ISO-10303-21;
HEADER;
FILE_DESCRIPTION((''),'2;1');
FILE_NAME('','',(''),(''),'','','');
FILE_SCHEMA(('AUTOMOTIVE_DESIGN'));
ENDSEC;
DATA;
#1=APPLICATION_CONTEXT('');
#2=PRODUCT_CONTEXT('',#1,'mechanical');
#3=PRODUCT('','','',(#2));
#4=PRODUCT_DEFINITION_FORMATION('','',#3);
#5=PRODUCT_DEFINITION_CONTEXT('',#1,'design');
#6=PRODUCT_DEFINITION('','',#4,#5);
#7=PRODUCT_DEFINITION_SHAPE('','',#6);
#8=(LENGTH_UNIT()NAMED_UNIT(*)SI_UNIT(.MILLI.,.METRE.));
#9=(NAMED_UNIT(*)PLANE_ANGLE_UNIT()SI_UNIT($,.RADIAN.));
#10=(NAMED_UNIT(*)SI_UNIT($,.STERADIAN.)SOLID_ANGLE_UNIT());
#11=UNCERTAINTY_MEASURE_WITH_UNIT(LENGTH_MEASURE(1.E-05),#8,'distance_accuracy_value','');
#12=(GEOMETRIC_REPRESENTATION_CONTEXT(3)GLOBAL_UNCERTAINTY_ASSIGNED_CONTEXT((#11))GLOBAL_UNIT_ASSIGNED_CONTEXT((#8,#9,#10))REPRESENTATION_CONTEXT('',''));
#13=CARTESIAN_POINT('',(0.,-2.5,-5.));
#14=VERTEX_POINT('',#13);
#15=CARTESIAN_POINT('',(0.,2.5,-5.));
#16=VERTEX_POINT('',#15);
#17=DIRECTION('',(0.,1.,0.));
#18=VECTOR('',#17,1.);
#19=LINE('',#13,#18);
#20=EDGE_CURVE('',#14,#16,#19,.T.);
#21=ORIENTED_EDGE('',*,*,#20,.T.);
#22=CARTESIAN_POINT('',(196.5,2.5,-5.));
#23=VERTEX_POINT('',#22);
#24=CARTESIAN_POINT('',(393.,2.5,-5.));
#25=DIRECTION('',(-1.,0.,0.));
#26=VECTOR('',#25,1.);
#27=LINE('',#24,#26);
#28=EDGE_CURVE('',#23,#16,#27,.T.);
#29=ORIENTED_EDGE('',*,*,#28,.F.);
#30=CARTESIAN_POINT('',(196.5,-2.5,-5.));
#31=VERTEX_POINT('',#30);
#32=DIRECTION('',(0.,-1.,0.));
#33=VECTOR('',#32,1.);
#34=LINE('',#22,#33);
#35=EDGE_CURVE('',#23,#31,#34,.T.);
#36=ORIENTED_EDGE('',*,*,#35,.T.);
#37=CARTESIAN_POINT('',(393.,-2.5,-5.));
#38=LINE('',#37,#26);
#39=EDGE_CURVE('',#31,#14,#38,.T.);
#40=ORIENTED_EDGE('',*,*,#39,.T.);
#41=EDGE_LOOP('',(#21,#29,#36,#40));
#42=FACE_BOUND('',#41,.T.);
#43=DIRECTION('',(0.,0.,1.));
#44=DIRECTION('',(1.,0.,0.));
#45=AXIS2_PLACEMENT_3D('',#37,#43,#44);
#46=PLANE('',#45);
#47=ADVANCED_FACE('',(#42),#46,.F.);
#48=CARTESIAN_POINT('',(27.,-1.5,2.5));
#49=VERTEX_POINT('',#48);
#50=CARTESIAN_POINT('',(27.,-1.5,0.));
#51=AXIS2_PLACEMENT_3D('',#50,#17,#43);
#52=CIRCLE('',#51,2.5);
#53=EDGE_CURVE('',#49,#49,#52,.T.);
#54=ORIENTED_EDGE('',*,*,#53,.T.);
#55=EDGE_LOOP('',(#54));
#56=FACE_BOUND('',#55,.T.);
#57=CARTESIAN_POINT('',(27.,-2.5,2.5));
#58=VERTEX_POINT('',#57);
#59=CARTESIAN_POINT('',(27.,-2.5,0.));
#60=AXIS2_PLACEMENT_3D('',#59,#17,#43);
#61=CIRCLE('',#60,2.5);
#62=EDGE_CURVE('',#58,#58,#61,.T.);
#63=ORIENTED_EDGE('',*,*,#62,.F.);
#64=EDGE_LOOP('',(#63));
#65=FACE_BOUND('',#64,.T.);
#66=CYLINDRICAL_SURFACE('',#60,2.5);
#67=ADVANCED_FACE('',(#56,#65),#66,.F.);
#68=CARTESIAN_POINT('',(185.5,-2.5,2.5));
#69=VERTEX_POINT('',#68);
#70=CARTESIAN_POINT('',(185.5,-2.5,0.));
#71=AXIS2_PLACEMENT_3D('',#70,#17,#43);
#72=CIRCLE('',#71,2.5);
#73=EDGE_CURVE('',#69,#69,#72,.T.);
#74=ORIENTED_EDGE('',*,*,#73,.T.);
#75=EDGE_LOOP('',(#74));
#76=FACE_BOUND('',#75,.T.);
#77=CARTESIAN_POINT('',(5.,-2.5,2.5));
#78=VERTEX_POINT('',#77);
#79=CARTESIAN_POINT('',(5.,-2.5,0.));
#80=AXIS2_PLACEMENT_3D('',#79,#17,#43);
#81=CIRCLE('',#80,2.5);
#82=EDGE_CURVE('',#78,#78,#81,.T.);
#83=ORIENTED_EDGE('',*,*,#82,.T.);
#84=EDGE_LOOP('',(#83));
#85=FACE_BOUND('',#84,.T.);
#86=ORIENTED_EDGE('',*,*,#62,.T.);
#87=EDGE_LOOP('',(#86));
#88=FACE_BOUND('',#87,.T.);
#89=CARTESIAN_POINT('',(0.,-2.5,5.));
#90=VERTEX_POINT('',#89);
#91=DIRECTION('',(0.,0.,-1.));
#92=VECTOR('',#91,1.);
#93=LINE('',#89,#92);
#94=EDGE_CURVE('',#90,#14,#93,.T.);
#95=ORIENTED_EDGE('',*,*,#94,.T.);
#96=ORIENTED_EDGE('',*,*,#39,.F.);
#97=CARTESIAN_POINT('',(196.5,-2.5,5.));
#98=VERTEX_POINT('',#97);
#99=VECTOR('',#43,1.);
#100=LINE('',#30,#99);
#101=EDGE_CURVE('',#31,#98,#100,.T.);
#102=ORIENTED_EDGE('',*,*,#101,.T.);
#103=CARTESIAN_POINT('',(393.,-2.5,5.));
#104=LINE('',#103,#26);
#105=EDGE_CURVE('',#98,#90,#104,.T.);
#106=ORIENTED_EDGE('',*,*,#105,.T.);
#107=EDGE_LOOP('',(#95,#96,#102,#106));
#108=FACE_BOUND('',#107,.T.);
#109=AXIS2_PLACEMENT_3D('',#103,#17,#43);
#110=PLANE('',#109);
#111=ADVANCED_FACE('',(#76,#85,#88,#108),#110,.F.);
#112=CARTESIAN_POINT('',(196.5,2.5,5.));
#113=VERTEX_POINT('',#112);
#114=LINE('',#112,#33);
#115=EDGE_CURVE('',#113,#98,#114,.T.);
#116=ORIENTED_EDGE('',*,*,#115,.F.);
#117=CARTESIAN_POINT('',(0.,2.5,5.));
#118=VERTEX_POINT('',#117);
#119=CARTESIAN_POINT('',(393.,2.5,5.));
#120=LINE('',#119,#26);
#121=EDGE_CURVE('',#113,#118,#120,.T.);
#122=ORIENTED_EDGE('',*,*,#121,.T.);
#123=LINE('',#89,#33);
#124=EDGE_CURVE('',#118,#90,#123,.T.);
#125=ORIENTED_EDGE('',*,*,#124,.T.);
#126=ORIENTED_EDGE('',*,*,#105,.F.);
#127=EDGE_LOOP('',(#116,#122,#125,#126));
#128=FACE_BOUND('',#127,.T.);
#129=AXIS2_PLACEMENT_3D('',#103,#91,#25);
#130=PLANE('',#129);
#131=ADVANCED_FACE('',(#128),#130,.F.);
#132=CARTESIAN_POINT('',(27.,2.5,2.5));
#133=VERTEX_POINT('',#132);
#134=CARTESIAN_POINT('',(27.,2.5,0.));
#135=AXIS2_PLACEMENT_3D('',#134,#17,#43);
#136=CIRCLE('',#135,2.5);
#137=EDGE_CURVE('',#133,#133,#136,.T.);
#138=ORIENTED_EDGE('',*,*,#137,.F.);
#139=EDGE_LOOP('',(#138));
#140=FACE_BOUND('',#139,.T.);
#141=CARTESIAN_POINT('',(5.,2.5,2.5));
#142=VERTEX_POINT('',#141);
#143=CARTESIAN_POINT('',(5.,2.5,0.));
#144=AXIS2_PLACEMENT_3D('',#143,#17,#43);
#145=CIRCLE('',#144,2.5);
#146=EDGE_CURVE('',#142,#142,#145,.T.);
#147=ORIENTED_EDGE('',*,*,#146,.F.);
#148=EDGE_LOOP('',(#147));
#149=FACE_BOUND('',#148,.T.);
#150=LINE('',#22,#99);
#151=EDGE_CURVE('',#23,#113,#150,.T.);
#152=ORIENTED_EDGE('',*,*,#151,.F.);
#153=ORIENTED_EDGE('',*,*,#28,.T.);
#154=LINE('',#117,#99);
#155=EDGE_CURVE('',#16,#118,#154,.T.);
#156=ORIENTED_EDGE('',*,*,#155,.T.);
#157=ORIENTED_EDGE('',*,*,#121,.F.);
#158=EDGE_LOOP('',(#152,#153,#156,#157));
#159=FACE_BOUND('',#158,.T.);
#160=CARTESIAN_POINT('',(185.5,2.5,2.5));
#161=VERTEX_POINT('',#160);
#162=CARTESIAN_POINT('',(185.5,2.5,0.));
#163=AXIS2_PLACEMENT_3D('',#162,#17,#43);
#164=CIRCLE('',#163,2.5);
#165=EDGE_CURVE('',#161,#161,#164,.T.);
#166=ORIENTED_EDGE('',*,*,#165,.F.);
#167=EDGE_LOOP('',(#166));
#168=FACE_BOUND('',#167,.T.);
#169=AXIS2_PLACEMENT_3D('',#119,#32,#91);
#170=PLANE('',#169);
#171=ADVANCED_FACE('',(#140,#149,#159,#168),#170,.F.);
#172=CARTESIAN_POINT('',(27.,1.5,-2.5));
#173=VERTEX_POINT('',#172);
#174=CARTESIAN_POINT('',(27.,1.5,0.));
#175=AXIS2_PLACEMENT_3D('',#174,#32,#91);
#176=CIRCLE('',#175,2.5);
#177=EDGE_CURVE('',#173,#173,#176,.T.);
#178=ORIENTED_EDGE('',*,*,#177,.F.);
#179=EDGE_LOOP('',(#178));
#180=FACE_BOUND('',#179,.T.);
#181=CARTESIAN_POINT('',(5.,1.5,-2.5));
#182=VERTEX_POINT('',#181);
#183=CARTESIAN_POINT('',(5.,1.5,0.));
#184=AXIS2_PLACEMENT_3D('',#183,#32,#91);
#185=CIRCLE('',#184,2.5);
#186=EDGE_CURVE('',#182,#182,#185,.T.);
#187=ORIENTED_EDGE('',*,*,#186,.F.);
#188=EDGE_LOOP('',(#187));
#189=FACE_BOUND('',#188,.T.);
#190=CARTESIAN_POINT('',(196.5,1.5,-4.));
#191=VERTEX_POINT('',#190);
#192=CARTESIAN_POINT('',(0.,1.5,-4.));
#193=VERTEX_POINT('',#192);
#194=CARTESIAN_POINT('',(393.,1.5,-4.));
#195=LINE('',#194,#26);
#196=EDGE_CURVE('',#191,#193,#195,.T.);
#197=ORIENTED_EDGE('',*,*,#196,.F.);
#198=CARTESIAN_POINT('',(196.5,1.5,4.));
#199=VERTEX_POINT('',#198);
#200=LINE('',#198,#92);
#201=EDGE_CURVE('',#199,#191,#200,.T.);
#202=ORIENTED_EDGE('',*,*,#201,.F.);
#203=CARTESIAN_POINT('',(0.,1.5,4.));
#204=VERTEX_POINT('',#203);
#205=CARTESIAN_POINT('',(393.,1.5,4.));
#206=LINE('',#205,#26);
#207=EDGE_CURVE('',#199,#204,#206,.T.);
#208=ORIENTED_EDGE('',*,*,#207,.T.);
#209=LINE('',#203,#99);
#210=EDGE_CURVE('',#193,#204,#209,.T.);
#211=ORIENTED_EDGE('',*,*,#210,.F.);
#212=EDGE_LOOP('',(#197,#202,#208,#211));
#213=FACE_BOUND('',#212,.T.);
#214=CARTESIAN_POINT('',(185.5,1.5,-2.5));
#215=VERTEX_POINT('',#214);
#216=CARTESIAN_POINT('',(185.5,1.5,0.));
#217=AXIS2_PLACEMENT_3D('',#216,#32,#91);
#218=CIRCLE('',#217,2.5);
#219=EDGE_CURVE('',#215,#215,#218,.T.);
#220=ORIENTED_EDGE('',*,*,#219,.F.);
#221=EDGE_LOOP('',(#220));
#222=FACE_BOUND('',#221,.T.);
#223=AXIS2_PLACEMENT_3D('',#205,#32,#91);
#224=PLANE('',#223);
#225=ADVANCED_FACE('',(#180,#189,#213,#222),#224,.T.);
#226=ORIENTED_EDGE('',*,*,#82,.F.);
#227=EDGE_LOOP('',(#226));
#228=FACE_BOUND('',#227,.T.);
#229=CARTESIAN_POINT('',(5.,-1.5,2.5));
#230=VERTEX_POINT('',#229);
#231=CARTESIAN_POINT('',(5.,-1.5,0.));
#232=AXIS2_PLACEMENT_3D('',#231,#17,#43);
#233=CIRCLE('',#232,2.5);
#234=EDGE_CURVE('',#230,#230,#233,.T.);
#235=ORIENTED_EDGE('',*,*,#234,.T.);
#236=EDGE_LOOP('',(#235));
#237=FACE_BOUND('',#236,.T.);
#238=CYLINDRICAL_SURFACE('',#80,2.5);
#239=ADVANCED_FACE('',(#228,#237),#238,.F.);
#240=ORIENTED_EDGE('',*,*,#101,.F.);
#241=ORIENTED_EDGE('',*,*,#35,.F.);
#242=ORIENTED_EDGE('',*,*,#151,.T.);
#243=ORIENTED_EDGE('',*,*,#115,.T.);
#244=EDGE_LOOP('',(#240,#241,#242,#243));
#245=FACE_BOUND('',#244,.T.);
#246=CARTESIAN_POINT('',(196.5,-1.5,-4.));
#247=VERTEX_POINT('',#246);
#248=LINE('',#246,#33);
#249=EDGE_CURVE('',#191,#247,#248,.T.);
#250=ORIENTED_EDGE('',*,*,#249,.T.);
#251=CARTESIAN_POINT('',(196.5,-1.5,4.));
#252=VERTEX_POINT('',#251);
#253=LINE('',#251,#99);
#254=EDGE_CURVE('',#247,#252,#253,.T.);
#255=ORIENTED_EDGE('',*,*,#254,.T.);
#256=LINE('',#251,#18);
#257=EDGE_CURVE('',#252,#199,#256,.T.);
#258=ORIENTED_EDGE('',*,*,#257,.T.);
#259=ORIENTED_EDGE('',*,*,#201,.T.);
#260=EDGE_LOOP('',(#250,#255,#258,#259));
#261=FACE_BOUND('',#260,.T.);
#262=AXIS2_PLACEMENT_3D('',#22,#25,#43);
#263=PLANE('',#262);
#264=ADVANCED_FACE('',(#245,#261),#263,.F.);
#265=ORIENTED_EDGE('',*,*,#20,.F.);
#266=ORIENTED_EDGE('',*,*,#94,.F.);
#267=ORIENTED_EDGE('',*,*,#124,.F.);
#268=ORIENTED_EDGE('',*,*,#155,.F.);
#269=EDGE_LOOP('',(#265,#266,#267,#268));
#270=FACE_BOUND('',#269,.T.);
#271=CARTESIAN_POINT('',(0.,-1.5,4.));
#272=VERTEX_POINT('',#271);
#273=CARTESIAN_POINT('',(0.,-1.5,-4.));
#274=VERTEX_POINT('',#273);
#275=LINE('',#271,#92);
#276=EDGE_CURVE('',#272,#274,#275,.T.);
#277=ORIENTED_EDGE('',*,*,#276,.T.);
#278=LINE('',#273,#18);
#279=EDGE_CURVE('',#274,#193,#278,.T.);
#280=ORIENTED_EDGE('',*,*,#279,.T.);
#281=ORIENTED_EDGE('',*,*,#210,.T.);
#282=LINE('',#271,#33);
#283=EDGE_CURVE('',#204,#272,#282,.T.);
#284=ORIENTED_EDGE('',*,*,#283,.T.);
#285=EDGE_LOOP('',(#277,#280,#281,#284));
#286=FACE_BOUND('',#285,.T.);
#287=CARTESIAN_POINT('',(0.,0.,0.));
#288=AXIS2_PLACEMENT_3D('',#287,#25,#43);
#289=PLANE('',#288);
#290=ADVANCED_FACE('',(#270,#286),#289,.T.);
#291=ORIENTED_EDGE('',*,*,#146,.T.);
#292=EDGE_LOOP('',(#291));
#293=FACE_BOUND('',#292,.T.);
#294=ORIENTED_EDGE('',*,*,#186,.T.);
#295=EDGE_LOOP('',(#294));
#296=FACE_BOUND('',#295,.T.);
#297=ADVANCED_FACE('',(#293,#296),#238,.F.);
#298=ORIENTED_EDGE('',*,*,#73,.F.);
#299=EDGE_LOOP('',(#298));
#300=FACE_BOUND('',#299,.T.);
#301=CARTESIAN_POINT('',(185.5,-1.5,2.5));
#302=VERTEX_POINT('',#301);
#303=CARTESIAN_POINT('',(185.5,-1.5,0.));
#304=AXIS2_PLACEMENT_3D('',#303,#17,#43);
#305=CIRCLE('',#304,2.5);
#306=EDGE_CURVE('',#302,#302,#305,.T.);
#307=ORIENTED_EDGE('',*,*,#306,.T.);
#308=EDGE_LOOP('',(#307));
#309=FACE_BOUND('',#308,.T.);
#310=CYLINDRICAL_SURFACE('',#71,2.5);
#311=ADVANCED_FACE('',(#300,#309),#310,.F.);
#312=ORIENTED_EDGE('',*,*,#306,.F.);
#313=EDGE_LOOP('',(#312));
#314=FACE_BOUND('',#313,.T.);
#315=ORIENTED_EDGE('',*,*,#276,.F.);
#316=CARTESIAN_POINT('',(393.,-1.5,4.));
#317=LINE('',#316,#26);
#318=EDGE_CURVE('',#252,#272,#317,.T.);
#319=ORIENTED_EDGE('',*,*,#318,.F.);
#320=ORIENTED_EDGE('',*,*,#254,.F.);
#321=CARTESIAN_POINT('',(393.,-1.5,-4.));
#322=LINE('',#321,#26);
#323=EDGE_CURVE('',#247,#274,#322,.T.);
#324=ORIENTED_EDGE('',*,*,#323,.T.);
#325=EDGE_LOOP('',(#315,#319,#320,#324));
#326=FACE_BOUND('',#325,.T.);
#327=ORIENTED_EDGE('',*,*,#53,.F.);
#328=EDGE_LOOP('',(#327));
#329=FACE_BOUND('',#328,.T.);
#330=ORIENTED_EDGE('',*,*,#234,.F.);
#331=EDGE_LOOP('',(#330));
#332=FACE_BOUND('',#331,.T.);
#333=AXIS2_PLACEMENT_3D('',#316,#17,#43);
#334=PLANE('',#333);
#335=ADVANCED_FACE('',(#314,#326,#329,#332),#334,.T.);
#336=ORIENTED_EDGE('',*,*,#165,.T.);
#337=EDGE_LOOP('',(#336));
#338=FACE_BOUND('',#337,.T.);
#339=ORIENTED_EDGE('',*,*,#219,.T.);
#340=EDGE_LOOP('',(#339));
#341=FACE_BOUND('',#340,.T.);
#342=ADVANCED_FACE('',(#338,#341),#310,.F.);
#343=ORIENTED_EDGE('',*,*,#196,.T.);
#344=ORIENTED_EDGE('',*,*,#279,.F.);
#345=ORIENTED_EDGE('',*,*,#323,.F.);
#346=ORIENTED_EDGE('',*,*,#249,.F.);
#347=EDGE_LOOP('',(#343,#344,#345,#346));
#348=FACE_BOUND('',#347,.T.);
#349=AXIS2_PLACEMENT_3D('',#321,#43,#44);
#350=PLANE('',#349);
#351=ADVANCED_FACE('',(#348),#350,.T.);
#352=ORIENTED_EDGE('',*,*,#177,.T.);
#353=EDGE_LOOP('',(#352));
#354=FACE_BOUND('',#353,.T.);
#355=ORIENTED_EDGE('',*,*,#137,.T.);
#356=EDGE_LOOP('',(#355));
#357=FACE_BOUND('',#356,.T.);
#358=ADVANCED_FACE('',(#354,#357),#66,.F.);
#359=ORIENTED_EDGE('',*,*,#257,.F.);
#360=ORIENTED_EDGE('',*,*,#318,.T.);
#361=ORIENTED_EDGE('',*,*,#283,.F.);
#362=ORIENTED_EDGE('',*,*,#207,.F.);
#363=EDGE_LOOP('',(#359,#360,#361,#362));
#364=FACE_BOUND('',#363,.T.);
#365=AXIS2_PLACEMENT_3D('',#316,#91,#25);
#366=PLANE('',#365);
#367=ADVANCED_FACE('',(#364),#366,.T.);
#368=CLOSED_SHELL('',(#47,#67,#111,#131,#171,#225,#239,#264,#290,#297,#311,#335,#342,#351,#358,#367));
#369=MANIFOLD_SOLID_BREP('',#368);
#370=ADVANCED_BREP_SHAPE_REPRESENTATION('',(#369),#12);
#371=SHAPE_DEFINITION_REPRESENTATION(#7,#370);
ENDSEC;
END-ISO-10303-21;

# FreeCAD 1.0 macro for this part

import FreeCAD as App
import Part
import Sketcher

V = App.Vector


def add_polygon(sketch, points):
    """Adds a closed chain of lines whose ends are joined by coincident constraints."""
    first, n = sketch.GeometryCount, len(points)
    for a, b in zip(points, points[1:] + points[:1]):
        sketch.addGeometry(Part.LineSegment(App.Vector(*a, 0), App.Vector(*b, 0)), False)
    for i in range(n):
        sketch.addConstraint(Sketcher.Constraint("Coincident", first + i, 2, first + (i + 1) % n, 1))

doc = App.newDocument("Part")
body = doc.addObject("PartDesign::Body", "Body")

sketch1 = doc.addObject("Sketcher::SketchObject", "Sketch")
body.addObject(sketch1)
sketch1.AttachmentSupport = (doc.YZ_Plane, [""])
sketch1.MapMode = "FlatFace"
add_polygon(sketch1, [(2.5, 5), (-2.5, 5), (-2.5, -5), (2.5, -5)])
add_polygon(sketch1, [(-1.5, -4), (-1.5, 4), (1.5, 4), (1.5, -4)])
sketch1.addConstraint(Sketcher.Constraint("Horizontal", 0))
sketch1.addConstraint(Sketcher.Constraint("Vertical", 1))
sketch1.addConstraint(Sketcher.Constraint("Horizontal", 2))
sketch1.addConstraint(Sketcher.Constraint("Vertical", 3))
sketch1.addConstraint(Sketcher.Constraint("Vertical", 4))
sketch1.addConstraint(Sketcher.Constraint("Horizontal", 5))
sketch1.addConstraint(Sketcher.Constraint("Vertical", 6))
sketch1.addConstraint(Sketcher.Constraint("Horizontal", 7))
sketch1.addConstraint(Sketcher.Constraint("Symmetric", 0, 2, 2, 2, -1, 1))
sketch1.addConstraint(Sketcher.Constraint("Symmetric", 4, 2, 6, 2, -1, 1))
sketch1.addConstraint(Sketcher.Constraint("DistanceX", 0, 2, 0, 1, 5.0))
sketch1.addConstraint(Sketcher.Constraint("DistanceX", 5, 1, 5, 2, 3.0))
sketch1.addConstraint(Sketcher.Constraint("DistanceY", 1, 2, 1, 1, 10.0))
sketch1.addConstraint(Sketcher.Constraint("DistanceY", 4, 1, 4, 2, 8.0))
pad1 = doc.addObject("PartDesign::Pad", "Pad")
body.addObject(pad1)
pad1.Profile = sketch1
pad1.Length = 393

sketch2 = doc.addObject("Sketcher::SketchObject", "Sketch001")
body.addObject(sketch2)
sketch2.AttachmentSupport = (doc.XZ_Plane, [""])
sketch2.MapMode = "FlatFace"
sketch2.AttachmentOffset = App.Placement(V(0, 0, -2.5), App.Rotation())
sketch2.addGeometry(Part.Circle(V(5, 0, 0), V(0, 0, 1), 2.5), False)
sketch2.addGeometry(Part.Circle(V(388, 0, 0), V(0, 0, 1), 2.5), False)
sketch2.addGeometry(Part.Circle(V(27, 0, 0), V(0, 0, 1), 2.5), False)
sketch2.addGeometry(Part.Circle(V(366, 0, 0), V(0, 0, 1), 2.5), False)
sketch2.addGeometry(Part.Circle(V(207.5, 0, 0), V(0, 0, 1), 2.5), False)
sketch2.addGeometry(Part.Circle(V(185.5, 0, 0), V(0, 0, 1), 2.5), False)
sketch2.addConstraint(Sketcher.Constraint("Equal", 0, 1))
sketch2.addConstraint(Sketcher.Constraint("Equal", 1, 2))
sketch2.addConstraint(Sketcher.Constraint("Equal", 2, 3))
sketch2.addConstraint(Sketcher.Constraint("Equal", 3, 4))
sketch2.addConstraint(Sketcher.Constraint("Equal", 4, 5))
sketch2.addConstraint(Sketcher.Constraint("PointOnObject", 0, 3, -1))
sketch2.addConstraint(Sketcher.Constraint("PointOnObject", 1, 3, -1))
sketch2.addConstraint(Sketcher.Constraint("PointOnObject", 2, 3, -1))
sketch2.addConstraint(Sketcher.Constraint("PointOnObject", 3, 3, -1))
sketch2.addConstraint(Sketcher.Constraint("PointOnObject", 4, 3, -1))
sketch2.addConstraint(Sketcher.Constraint("PointOnObject", 5, 3, -1))
sketch2.addConstraint(Sketcher.Constraint("Diameter", 0, 5.0))
sketch2.addConstraint(Sketcher.Constraint("DistanceX", -1, 1, 0, 3, 5.0))
sketch2.addConstraint(Sketcher.Constraint("DistanceX", -1, 1, 1, 3, 388.0))
sketch2.addConstraint(Sketcher.Constraint("DistanceX", -1, 1, 2, 3, 27.0))
sketch2.addConstraint(Sketcher.Constraint("DistanceX", -1, 1, 3, 3, 366.0))
sketch2.addConstraint(Sketcher.Constraint("DistanceX", 5, 3, 4, 3, 22.0))
sketch2.addConstraint(Sketcher.Constraint("DistanceX", -1, 1, 4, 3, 207.5))
pocket1 = doc.addObject("PartDesign::Pocket", "Pocket")
body.addObject(pocket1)
pocket1.Profile = sketch2
pocket1.Length = 5
pocket1.Reversed = True

sketch3 = doc.addObject("Sketcher::SketchObject", "Sketch002")
body.addObject(sketch3)
sketch3.AttachmentSupport = (doc.XY_Plane, [""])
sketch3.MapMode = "FlatFace"
sketch3.AttachmentOffset = App.Placement(V(0, 0, 5), App.Rotation())
add_polygon(sketch3, [(196.5, 2.5), (196.5, -2.5), (393, -2.5), (393, 2.5)])
sketch3.addConstraint(Sketcher.Constraint("Vertical", 0))
sketch3.addConstraint(Sketcher.Constraint("Horizontal", 1))
sketch3.addConstraint(Sketcher.Constraint("Vertical", 2))
sketch3.addConstraint(Sketcher.Constraint("Horizontal", 3))
sketch3.addConstraint(Sketcher.Constraint("DistanceY", 0, 2, 0, 1, 5.0))
sketch3.addConstraint(Sketcher.Constraint("DistanceX", 1, 1, 1, 2, 196.5))
sketch3.addConstraint(Sketcher.Constraint("DistanceX", -1, 1, 1, 2, 393.0))
sketch3.addConstraint(Sketcher.Constraint("DistanceY", 0, 2, -1, 1, 2.5))
pocket2 = doc.addObject("PartDesign::Pocket", "Pocket001")
body.addObject(pocket2)
pocket2.Profile = sketch3
pocket2.Length = 10

doc.recompute()
